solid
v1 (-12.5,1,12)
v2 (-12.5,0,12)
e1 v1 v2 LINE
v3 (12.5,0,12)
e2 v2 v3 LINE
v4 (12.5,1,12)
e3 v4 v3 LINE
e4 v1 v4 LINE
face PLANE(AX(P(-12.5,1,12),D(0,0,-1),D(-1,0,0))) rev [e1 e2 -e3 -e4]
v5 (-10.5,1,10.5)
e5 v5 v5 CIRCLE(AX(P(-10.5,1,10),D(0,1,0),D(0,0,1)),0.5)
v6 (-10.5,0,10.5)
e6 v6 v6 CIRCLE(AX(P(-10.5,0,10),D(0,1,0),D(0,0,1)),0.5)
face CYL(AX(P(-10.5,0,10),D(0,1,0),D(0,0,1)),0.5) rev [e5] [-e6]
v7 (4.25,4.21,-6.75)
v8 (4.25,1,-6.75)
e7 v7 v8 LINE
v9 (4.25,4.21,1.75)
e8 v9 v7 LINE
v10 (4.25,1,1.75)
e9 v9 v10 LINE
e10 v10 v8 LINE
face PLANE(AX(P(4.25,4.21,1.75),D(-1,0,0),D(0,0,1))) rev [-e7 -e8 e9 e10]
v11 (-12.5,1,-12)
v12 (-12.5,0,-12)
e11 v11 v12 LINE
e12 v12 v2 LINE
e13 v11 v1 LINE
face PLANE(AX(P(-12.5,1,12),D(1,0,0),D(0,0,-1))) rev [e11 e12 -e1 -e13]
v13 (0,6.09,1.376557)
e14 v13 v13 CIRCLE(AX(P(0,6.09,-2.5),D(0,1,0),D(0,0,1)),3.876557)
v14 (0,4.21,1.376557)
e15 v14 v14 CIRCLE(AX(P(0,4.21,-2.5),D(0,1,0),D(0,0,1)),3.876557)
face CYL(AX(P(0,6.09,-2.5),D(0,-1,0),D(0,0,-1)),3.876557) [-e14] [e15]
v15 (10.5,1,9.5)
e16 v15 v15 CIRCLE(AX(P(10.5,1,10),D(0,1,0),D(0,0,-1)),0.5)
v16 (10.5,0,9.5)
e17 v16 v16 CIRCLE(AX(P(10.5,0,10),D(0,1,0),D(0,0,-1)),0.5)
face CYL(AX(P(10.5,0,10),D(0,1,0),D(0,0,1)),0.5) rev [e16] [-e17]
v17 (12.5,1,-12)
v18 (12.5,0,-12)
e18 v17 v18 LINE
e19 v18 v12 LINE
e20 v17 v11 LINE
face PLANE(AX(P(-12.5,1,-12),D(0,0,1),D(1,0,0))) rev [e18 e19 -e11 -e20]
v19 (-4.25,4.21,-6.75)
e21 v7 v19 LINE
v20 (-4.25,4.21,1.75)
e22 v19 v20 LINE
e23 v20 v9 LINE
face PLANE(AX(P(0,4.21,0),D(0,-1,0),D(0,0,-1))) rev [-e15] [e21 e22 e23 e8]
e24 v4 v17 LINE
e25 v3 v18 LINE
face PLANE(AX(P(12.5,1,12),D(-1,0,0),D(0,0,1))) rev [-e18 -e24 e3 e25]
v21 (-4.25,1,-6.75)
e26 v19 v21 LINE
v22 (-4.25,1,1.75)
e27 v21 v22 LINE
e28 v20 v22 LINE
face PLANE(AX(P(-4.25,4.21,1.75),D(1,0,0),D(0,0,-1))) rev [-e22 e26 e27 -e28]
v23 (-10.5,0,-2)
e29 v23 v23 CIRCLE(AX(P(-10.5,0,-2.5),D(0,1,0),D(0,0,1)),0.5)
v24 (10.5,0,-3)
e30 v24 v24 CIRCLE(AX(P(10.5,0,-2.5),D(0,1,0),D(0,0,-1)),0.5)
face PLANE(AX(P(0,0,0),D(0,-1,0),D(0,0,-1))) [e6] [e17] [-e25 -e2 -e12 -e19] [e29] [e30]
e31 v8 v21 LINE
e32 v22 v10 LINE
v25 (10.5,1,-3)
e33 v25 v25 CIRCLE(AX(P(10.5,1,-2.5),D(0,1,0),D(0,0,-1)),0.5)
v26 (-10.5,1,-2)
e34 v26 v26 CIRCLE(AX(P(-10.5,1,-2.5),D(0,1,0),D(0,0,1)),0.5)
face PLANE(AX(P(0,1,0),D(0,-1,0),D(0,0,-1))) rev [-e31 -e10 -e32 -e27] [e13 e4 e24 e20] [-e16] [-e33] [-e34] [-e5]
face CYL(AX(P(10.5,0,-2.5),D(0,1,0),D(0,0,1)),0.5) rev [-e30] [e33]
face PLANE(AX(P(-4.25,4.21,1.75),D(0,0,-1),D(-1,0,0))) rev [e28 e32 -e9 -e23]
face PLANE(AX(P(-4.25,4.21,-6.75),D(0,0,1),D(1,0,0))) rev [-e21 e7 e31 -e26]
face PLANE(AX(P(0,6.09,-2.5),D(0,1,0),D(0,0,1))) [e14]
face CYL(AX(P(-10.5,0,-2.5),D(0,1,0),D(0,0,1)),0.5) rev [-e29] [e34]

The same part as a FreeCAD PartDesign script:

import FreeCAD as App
import Part
import Sketcher


def add_polygon(sketch, points):
    """Adds a closed chain of lines whose ends are joined by coincident constraints."""
    first, n = sketch.GeometryCount, len(points)
    for a, b in zip(points, points[1:] + points[:1]):
        sketch.addGeometry(Part.LineSegment(App.Vector(*a, 0), App.Vector(*b, 0)), False)
    for i in range(n):
        sketch.addConstraint(Sketcher.Constraint("Coincident", first + i, 2, first + (i + 1) % n, 1))

doc = App.newDocument("Part")
params = doc.addObject("Spreadsheet::Sheet", "Params")
for row, (alias, value) in enumerate([
    ("sketch1_width", "25 mm"),
    ("sketch1_height", "24 mm"),
    ("pad1_length", "1 mm"),
    ("sketch2_diameter", "1 mm"),
    ("sketch3_width", "8.5 mm"),
    ("pad2_length", "3.21 mm"),
    ("pad3_length", "1.88 mm"),
], start=1):
    params.set(f"A{row}", alias)
    params.set(f"B{row}", "=" + value)
    params.setAlias(f"B{row}", alias)

body = doc.addObject("PartDesign::Body", "Body")

# Sketch on XZ plane
sketch1 = body.newObject("Sketcher::SketchObject", "Sketch")
sketch1.AttachmentSupport = (doc.getObject("XZ_Plane"), [""])
sketch1.MapMode = "FlatFace"
add_polygon(sketch1, [(-12, -12), (-12, 12), (12, 12), (12, -12)])  # lines 0-3
sketch1.addConstraint(Sketcher.Constraint("Vertical", 0))
sketch1.addConstraint(Sketcher.Constraint("Horizontal", 1))
sketch1.addConstraint(Sketcher.Constraint("Vertical", 2))
sketch1.addConstraint(Sketcher.Constraint("Horizontal", 3))
sketch1.addConstraint(Sketcher.Constraint("Symmetric", 0, 2, 2, 2, -1, 1))
sketch1.addConstraint(Sketcher.Constraint("DistanceX", 1, 1, 1, 2, 25.0))
sketch1.addConstraint(Sketcher.Constraint("DistanceY", 0, 1, 0, 2, 24.0))
sketch1.setExpression("Constraints[9]", "Params.sketch1_width")
sketch1.setExpression("Constraints[10]", "Params.sketch1_height")
pad1 = body.newObject("PartDesign::Pad", "Pad")
pad1.Profile = sketch1
pad1.setExpression("Length", "Params.pad1_length")
pad1.Reversed = True

# Sketch on XZ plane
sketch2 = body.newObject("Sketcher::SketchObject", "Sketch001")
sketch2.AttachmentSupport = (doc.getObject("XZ_Plane"), [""])
sketch2.MapMode = "FlatFace"
sketch2.AttachmentOffset = App.Placement(App.Vector(0, 0, -1), App.Rotation())
sketch2.addGeometry(Part.Circle(App.Vector(-10.5, 10, 0), App.Vector(0, 0, 1), 0.5), False)
sketch2.addGeometry(Part.Circle(App.Vector(10.5, 10, 0), App.Vector(0, 0, 1), 0.5), False)
sketch2.addGeometry(Part.Circle(App.Vector(-10.5, -2.5, 0), App.Vector(0, 0, 1), 0.5), False)
sketch2.addGeometry(Part.Circle(App.Vector(10.5, -2.5, 0), App.Vector(0, 0, 1), 0.5), False)
sketch2.addConstraint(Sketcher.Constraint("Equal", 0, 1))
sketch2.addConstraint(Sketcher.Constraint("Equal", 1, 2))
sketch2.addConstraint(Sketcher.Constraint("Equal", 2, 3))
sketch2.addConstraint(Sketcher.Constraint("Symmetric", 0, 3, 1, 3, -2))
sketch2.addConstraint(Sketcher.Constraint("Symmetric", 2, 3, 3, 3, -2))
sketch2.addConstraint(Sketcher.Constraint("Vertical", 0, 3, 2, 3))
sketch2.addConstraint(Sketcher.Constraint("Diameter", 0, 1.0))
sketch2.addConstraint(Sketcher.Constraint("DistanceY", -1, 1, 0, 3, 10.0))
sketch2.addConstraint(Sketcher.Constraint("DistanceX", 0, 3, 1, 3, 21.0))
sketch2.addConstraint(Sketcher.Constraint("DistanceY", 2, 3, -1, 1, 2.5))
sketch2.setExpression("Constraints[6]", "Params.sketch2_diameter")
pocket1 = body.newObject("PartDesign::Pocket", "Pocket")
pocket1.Profile = sketch2
pocket1.Type = "ThroughAll"
pocket1.Reversed = True

# Sketch on XZ plane
sketch3 = body.newObject("Sketcher::SketchObject", "Sketch002")
sketch3.AttachmentSupport = (doc.getObject("XZ_Plane"), [""])
sketch3.MapMode = "FlatFace"
sketch3.AttachmentOffset = App.Placement(App.Vector(0, 0, -1), App.Rotation())
add_polygon(sketch3, [(-4, -7), (-4, 2), (4, 2), (4, -7)])  # lines 0-3
sketch3.addConstraint(Sketcher.Constraint("Vertical", 0))
sketch3.addConstraint(Sketcher.Constraint("Horizontal", 1))
sketch3.addConstraint(Sketcher.Constraint("Vertical", 2))
sketch3.addConstraint(Sketcher.Constraint("Horizontal", 3))
sketch3.addConstraint(Sketcher.Constraint("Equal", 3, 0))
sketch3.addConstraint(Sketcher.Constraint("DistanceX", 1, 1, 1, 2, 8.5))
sketch3.addConstraint(Sketcher.Constraint("DistanceX", 0, 2, -1, 1, 4.25))
sketch3.addConstraint(Sketcher.Constraint("DistanceY", -1, 1, 0, 2, 1.75))
sketch3.setExpression("Constraints[9]", "Params.sketch3_width")
pad2 = body.newObject("PartDesign::Pad", "Pad001")
pad2.Profile = sketch3
pad2.setExpression("Length", "Params.pad2_length")
pad2.Reversed = True

# Sketch on XZ plane
sketch4 = body.newObject("Sketcher::SketchObject", "Sketch003")
sketch4.AttachmentSupport = (doc.getObject("XZ_Plane"), [""])
sketch4.MapMode = "FlatFace"
sketch4.AttachmentOffset = App.Placement(App.Vector(0, 0, -4.21), App.Rotation())
sketch4.addGeometry(Part.Circle(App.Vector(0, -2.5, 0), App.Vector(0, 0, 1), 3.9), False)
sketch4.addConstraint(Sketcher.Constraint("PointOnObject", 0, 3, -2))
sketch4.addConstraint(Sketcher.Constraint("DistanceY", 0, 3, -1, 1, 2.5))
sketch4.addConstraint(Sketcher.Constraint("Diameter", 0, 7.753115))
pad3 = body.newObject("PartDesign::Pad", "Pad002")
pad3.Profile = sketch4
pad3.setExpression("Length", "Params.pad3_length")
pad3.Reversed = True

doc.recompute()
